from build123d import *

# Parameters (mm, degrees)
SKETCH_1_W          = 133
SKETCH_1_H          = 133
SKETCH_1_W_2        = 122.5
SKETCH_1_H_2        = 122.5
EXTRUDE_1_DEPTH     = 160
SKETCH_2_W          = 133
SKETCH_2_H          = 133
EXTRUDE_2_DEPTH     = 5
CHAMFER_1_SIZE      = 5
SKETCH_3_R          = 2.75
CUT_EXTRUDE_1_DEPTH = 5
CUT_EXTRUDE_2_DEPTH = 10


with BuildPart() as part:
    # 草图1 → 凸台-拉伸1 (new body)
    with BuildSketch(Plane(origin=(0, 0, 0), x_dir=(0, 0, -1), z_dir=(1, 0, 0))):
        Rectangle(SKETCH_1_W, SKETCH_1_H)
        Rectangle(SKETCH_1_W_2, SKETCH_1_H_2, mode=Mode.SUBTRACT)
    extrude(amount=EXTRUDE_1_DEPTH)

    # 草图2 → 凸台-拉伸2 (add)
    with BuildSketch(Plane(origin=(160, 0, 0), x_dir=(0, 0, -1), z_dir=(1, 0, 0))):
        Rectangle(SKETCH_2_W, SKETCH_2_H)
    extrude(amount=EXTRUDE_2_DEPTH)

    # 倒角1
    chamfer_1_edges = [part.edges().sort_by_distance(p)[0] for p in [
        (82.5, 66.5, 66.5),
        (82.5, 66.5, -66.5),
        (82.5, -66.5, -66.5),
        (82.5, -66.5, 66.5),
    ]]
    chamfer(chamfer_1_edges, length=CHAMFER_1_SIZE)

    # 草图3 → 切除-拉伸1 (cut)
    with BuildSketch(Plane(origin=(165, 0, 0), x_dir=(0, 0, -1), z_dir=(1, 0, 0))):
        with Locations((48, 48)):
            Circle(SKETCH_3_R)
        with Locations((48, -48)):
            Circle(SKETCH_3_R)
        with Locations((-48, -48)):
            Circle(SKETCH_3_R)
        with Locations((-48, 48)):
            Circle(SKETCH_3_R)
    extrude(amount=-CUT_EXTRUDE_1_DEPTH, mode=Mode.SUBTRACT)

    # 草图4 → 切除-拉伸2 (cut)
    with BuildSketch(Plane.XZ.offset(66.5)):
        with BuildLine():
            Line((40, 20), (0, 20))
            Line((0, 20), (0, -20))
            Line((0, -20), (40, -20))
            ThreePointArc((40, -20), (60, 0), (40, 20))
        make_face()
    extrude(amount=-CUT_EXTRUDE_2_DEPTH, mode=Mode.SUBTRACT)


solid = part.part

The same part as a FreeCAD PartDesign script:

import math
import FreeCAD as App
import Part
import Sketcher

V = App.Vector
Q = App.Units.Quantity


def edges_at(feature, points):
    """Names of the edges that pass closest to the given points."""
    edges = feature.Shape.Edges
    near = lambda p: min(range(len(edges)), key=lambda i: edges[i].distToShape(Part.Vertex(*p))[0])
    return sorted({f"Edge{near(p) + 1}" for p in points})

doc = App.newDocument("Part")
params = doc.addObject("Spreadsheet::Sheet", "Params")
for row, (alias, value) in enumerate([
    ("sketch1_width", "133 mm"),
    ("sketch1_width2", "122.5 mm"),
    ("pad1_length", "160 mm"),
    ("sketch2_width", "133 mm"),
    ("pad2_length", "5 mm"),
    ("chamfer_size", "5 mm"),
    ("sketch3_diameter", "5.5 mm"),
    ("pocket1_length", "5 mm"),
    ("sketch4_radius", "20 mm"),
    ("pocket2_length", "10 mm"),
], start=1):
    params.set(f"A{row}", alias)
    params.set(f"B{row}", "=" + value)
    params.setAlias(f"B{row}", alias)

body = doc.addObject("PartDesign::Body", "Body")

# Sketch on YZ plane
sketch1 = body.newObject("Sketcher::SketchObject", "Sketch")
sketch1.AttachmentSupport = (doc.getObject("YZ_Plane"), [""])
sketch1.MapMode = "FlatFace"
sketch1.addGeometry([
    Part.LineSegment(V(66.5, 66.5, 0), V(-66.5, 66.5, 0)),  # 0
    Part.LineSegment(V(-66.5, 66.5, 0), V(-66.5, -66.5, 0)),  # 1
    Part.LineSegment(V(-66.5, -66.5, 0), V(66.5, -66.5, 0)),  # 2
    Part.LineSegment(V(66.5, -66.5, 0), V(66.5, 66.5, 0)),  # 3
    Part.LineSegment(V(-61.25, -61.25, 0), V(-61.25, 61.25, 0)),  # 4
    Part.LineSegment(V(-61.25, 61.25, 0), V(61.25, 61.25, 0)),  # 5
    Part.LineSegment(V(61.25, 61.25, 0), V(61.25, -61.25, 0)),  # 6
    Part.LineSegment(V(61.25, -61.25, 0), V(-61.25, -61.25, 0)),  # 7
], False)
sketch1.addConstraint([
    Sketcher.Constraint("Coincident", 0, 2, 1, 1),
    Sketcher.Constraint("Coincident", 1, 2, 2, 1),
    Sketcher.Constraint("Coincident", 2, 2, 3, 1),
    Sketcher.Constraint("Coincident", 3, 2, 0, 1),
    Sketcher.Constraint("Coincident", 4, 2, 5, 1),
    Sketcher.Constraint("Coincident", 5, 2, 6, 1),
    Sketcher.Constraint("Coincident", 6, 2, 7, 1),
    Sketcher.Constraint("Coincident", 7, 2, 4, 1),
    Sketcher.Constraint("Horizontal", 0),
    Sketcher.Constraint("Vertical", 1),
    Sketcher.Constraint("Horizontal", 2),
    Sketcher.Constraint("Vertical", 3),
    Sketcher.Constraint("Vertical", 4),
    Sketcher.Constraint("Horizontal", 5),
    Sketcher.Constraint("Vertical", 6),
    Sketcher.Constraint("Horizontal", 7),
    Sketcher.Constraint("Symmetric", 0, 2, 2, 2, -1, 1),
    Sketcher.Constraint("Symmetric", 4, 2, 6, 2, -1, 1),
    Sketcher.Constraint("Equal", 2, 1),
    Sketcher.Constraint("Equal", 7, 4),
    Sketcher.Constraint("DistanceX", 0, 2, 0, 1, Q("133 mm")),
    Sketcher.Constraint("DistanceX", 5, 1, 5, 2, Q("122.5 mm")),
])
sketch1.setExpression("Constraints[20]", "Params.sketch1_width")
sketch1.setExpression("Constraints[21]", "Params.sketch1_width2")
pad1 = body.newObject("PartDesign::Pad", "Pad")
pad1.Profile = sketch1
pad1.setExpression("Length", "Params.pad1_length")

# Sketch on YZ plane
sketch2 = body.newObject("Sketcher::SketchObject", "Sketch001")
sketch2.AttachmentSupport = (doc.getObject("YZ_Plane"), [""])
sketch2.MapMode = "FlatFace"
sketch2.AttachmentOffset = App.Placement(V(0, 0, 160), App.Rotation())
sketch2.addGeometry([
    Part.LineSegment(V(66.5, 66.5, 0), V(-66.5, 66.5, 0)),
    Part.LineSegment(V(-66.5, 66.5, 0), V(-66.5, -66.5, 0)),
    Part.LineSegment(V(-66.5, -66.5, 0), V(66.5, -66.5, 0)),
    Part.LineSegment(V(66.5, -66.5, 0), V(66.5, 66.5, 0)),
], False)
sketch2.addConstraint([
    Sketcher.Constraint("Coincident", 0, 2, 1, 1),
    Sketcher.Constraint("Coincident", 1, 2, 2, 1),
    Sketcher.Constraint("Coincident", 2, 2, 3, 1),
    Sketcher.Constraint("Coincident", 3, 2, 0, 1),
    Sketcher.Constraint("Horizontal", 0),
    Sketcher.Constraint("Vertical", 1),
    Sketcher.Constraint("Horizontal", 2),
    Sketcher.Constraint("Vertical", 3),
    Sketcher.Constraint("Symmetric", 0, 2, 2, 2, -1, 1),
    Sketcher.Constraint("Equal", 2, 1),
    Sketcher.Constraint("DistanceX", 0, 2, 0, 1, Q("133 mm")),
])
sketch2.setExpression("Constraints[10]", "Params.sketch2_width")
pad2 = body.newObject("PartDesign::Pad", "Pad001")
pad2.Profile = sketch2
pad2.setExpression("Length", "Params.pad2_length")
doc.recompute()

chamfer = body.newObject("PartDesign::Chamfer", "Chamfer")
chamfer.Base = (pad2, edges_at(pad2, [
    (82.5, 66.5, 66.5),
    (82.5, 66.5, -66.5),
    (82.5, -66.5, -66.5),
    (82.5, -66.5, 66.5),
]))
chamfer.setExpression("Size", "Params.chamfer_size")

# Sketch on YZ plane
sketch3 = body.newObject("Sketcher::SketchObject", "Sketch002")
sketch3.AttachmentSupport = (doc.getObject("YZ_Plane"), [""])
sketch3.MapMode = "FlatFace"
sketch3.AttachmentOffset = App.Placement(V(0, 0, 165), App.Rotation())
sketch3.addGeometry([
    Part.Circle(V(48, -48, 0), V(0, 0, 1), 2.75),
    Part.Circle(V(-48, -48, 0), V(0, 0, 1), 2.75),
    Part.Circle(V(-48, 48, 0), V(0, 0, 1), 2.75),
    Part.Circle(V(48, 48, 0), V(0, 0, 1), 2.75),
], False)
sketch3.addConstraint([
    Sketcher.Constraint("Equal", 0, 1),
    Sketcher.Constraint("Equal", 1, 2),
    Sketcher.Constraint("Equal", 2, 3),
    Sketcher.Constraint("Symmetric", 0, 3, 2, 3, -1, 1),
    Sketcher.Constraint("Symmetric", 1, 3, 3, 3, -1, 1),
    Sketcher.Constraint("Symmetric", 0, 3, 1, 3, -2),
    Sketcher.Constraint("Diameter", 0, Q("5.5 mm")),
    Sketcher.Constraint("DistanceX", -1, 1, 0, 3, Q("48 mm")),
    Sketcher.Constraint("DistanceY", 0, 3, -1, 1, Q("48 mm")),
])
sketch3.setExpression("Constraints[6]", "Params.sketch3_diameter")
pocket1 = body.newObject("PartDesign::Pocket", "Pocket")
pocket1.Profile = sketch3
pocket1.setExpression("Length", "Params.pocket1_length")

# Sketch on XZ plane
sketch4 = body.newObject("Sketcher::SketchObject", "Sketch003")
sketch4.AttachmentSupport = (doc.getObject("XZ_Plane"), [""])
sketch4.MapMode = "FlatFace"
sketch4.AttachmentOffset = App.Placement(V(0, 0, 66.5), App.Rotation())
sketch4.addGeometry([
    Part.LineSegment(V(40, 20, 0), V(0, 20, 0)),
    Part.LineSegment(V(0, 20, 0), V(0, -20, 0)),
    Part.LineSegment(V(0, -20, 0), V(40, -20, 0)),
    Part.ArcOfCircle(Part.Circle(V(40, 0, 0), V(0, 0, 1), 20), math.radians(-90), math.radians(90)),
], False)
sketch4.addConstraint([
    Sketcher.Constraint("Coincident", 0, 2, 1, 1),
    Sketcher.Constraint("Coincident", 1, 2, 2, 1),
    Sketcher.Constraint("Tangent", 2, 2, 3, 1),
    Sketcher.Constraint("Tangent", 3, 2, 0, 1),
    Sketcher.Constraint("Horizontal", 0),
    Sketcher.Constraint("Vertical", 1),
    Sketcher.Constraint("Horizontal", 2),
    Sketcher.Constraint("Symmetric", 0, 2, 1, 2, -1, 1),
    Sketcher.Constraint("Equal", 2, 1),
    Sketcher.Constraint("Radius", 3, Q("20 mm")),
])
sketch4.setExpression("Constraints[9]", "Params.sketch4_radius")
pocket2 = body.newObject("PartDesign::Pocket", "Pocket001")
pocket2.Profile = sketch4
pocket2.setExpression("Length", "Params.pocket2_length")

doc.recompute()
